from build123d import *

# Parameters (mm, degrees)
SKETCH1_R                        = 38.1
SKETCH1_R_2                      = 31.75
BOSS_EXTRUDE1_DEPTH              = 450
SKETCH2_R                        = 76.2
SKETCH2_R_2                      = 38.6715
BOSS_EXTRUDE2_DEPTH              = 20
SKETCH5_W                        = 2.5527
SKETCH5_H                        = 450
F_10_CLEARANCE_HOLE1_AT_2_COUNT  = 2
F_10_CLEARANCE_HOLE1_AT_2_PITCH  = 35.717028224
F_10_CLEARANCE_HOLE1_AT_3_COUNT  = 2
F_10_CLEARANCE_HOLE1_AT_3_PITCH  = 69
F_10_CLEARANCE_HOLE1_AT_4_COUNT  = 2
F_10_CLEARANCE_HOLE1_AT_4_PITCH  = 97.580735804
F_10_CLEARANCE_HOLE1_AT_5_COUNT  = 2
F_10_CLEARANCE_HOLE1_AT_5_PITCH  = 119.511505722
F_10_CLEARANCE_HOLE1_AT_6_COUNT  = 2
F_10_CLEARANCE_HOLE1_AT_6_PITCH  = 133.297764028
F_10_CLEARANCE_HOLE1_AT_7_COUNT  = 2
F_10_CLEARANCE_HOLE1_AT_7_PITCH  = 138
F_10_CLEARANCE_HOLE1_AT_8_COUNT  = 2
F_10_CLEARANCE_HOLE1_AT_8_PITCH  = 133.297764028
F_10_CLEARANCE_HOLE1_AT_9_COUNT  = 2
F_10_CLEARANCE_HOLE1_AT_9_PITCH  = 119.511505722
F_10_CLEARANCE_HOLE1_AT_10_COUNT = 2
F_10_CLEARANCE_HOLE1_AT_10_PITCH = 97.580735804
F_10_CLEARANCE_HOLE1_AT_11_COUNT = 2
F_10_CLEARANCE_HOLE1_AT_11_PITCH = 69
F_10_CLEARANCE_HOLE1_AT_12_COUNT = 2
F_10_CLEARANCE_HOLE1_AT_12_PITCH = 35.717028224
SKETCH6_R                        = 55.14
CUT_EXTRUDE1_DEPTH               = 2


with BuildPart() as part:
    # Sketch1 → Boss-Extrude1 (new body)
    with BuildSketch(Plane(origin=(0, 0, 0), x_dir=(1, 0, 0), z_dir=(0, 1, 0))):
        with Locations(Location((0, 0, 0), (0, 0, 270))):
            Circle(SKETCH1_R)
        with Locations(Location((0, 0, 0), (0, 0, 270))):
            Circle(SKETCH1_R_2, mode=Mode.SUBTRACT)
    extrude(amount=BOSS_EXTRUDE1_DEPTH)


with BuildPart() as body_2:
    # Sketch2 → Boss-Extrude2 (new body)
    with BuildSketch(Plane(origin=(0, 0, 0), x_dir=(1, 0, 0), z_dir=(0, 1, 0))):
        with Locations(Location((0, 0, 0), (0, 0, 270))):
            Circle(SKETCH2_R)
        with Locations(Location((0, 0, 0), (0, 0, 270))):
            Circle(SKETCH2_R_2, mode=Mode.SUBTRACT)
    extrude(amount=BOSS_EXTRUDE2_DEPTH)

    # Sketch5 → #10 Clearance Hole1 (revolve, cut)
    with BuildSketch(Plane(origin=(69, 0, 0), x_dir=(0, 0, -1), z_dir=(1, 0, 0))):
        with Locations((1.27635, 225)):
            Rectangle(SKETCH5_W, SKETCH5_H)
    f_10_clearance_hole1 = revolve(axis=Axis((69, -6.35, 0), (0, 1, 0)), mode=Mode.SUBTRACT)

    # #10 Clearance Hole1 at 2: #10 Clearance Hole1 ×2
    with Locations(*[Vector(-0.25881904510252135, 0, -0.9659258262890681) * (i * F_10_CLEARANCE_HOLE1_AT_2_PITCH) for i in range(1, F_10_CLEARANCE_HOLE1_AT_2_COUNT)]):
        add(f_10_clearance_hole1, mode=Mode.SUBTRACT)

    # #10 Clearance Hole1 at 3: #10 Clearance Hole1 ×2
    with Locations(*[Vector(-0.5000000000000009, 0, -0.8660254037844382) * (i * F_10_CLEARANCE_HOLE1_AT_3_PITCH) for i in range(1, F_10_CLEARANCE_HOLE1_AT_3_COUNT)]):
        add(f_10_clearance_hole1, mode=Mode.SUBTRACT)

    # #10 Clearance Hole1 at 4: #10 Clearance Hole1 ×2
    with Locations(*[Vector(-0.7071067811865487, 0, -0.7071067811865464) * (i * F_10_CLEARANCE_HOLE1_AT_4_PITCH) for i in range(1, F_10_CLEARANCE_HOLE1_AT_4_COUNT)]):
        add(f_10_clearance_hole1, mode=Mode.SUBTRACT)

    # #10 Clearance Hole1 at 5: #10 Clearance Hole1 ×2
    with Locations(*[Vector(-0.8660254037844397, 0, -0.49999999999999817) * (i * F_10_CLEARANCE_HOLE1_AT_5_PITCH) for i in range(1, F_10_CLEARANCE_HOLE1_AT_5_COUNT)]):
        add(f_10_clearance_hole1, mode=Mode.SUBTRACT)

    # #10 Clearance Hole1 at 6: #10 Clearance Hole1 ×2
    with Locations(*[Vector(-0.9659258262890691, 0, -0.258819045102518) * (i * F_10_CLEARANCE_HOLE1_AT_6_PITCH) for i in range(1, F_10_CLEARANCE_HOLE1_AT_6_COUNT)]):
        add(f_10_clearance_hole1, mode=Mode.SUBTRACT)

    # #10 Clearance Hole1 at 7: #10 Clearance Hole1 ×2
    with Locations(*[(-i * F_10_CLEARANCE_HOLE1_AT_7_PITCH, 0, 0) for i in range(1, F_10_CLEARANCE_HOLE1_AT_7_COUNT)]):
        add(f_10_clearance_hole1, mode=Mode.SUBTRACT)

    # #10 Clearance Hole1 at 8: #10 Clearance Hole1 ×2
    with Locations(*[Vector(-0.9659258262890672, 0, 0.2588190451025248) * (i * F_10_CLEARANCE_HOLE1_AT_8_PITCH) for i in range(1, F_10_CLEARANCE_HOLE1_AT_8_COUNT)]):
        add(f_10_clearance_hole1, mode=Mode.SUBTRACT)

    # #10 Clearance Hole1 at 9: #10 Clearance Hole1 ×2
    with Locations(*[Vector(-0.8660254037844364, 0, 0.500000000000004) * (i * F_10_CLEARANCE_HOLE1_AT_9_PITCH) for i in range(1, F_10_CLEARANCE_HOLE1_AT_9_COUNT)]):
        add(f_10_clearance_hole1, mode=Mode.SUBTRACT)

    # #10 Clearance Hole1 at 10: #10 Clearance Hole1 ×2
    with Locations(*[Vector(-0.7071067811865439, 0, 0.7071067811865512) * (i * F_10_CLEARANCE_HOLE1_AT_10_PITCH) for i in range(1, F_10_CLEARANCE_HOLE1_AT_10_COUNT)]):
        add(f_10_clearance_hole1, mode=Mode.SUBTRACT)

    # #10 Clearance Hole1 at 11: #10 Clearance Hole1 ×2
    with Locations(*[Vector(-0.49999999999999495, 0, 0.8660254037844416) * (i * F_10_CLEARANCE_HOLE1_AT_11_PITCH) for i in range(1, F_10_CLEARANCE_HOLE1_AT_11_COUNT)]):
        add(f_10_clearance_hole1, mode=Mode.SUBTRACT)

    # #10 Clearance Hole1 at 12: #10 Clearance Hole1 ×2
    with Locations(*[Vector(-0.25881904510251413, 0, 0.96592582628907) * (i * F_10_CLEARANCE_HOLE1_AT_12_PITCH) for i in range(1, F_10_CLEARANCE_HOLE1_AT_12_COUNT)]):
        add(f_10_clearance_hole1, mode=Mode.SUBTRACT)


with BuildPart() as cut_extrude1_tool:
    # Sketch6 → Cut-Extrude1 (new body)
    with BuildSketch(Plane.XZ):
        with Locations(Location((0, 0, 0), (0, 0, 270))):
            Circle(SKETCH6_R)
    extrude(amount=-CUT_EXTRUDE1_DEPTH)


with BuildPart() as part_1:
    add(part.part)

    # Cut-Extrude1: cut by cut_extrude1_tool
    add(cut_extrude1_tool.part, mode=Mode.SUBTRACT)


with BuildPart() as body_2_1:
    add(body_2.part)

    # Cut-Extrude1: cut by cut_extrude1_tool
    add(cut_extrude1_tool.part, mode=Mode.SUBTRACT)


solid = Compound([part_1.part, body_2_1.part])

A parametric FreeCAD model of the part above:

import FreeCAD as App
import Part
import Sketcher

V = App.Vector
Q = App.Units.Quantity

doc = App.newDocument("Part")
params = doc.addObject("Spreadsheet::Sheet", "Params")
for row, (alias, value) in enumerate([
    ("sketch1_diameter", "3 in"),
    ("sketch1_diameter2", "2.5 in"),
    ("pad1_length", "450 mm"),
    ("sketch2_diameter", "6 in"),
    ("sketch2_diameter2", "3.045 in"),
    ("pad2_length", "20 mm"),
    ("groove_angle", "360 deg"),
    ("linearpattern_pitch", "35.717028 mm"),
    ("linearpattern2_pitch", "69 mm"),
    ("linearpattern3_pitch", "97.580736 mm"),
    ("linearpattern4_pitch", "119.511506 mm"),
    ("linearpattern5_pitch", "133.297764 mm"),
    ("linearpattern6_pitch", "138 mm"),
    ("linearpattern7_pitch", "133.297764 mm"),
    ("linearpattern8_pitch", "119.511506 mm"),
    ("linearpattern9_pitch", "97.580736 mm"),
    ("linearpattern10_pitch", "69 mm"),
    ("linearpattern11_pitch", "35.717028 mm"),
    ("pad3_length", "2 mm"),
], start=1):
    params.set(f"A{row}", alias)
    params.set(f"B{row}", "=" + value)
    params.setAlias(f"B{row}", alias)

body = doc.addObject("PartDesign::Body", "Body")

# Sketch on XZ plane
sketch1 = body.newObject("Sketcher::SketchObject", "Sketch")
sketch1.AttachmentSupport = (doc.getObject("XZ_Plane"), [""])
sketch1.MapMode = "FlatFace"
sketch1.addGeometry(Part.Circle(V(0, 0, 0), V(0, 0, 1), 38), False)
sketch1.addGeometry(Part.Circle(V(0, 0, 0), V(0, 0, 1), 32), False)
sketch1.addConstraint(Sketcher.Constraint("Coincident", 0, 3, -1, 1))
sketch1.addConstraint(Sketcher.Constraint("Coincident", 1, 3, -1, 1))
sketch1.addConstraint(Sketcher.Constraint("Diameter", 0, Q("3 in")))
sketch1.addConstraint(Sketcher.Constraint("Diameter", 1, Q("2.5 in")))
sketch1.setExpression("Constraints[2]", "Params.sketch1_diameter")
sketch1.setExpression("Constraints[3]", "Params.sketch1_diameter2")
pad1 = body.newObject("PartDesign::Pad", "Pad")
pad1.Profile = sketch1
pad1.setExpression("Length", "Params.pad1_length")
pad1.Reversed = True
body2 = doc.addObject("PartDesign::Body", "Body001")

# Sketch on XZ plane
sketch2 = body2.newObject("Sketcher::SketchObject", "Sketch001")
sketch2.AttachmentSupport = (doc.getObject("XZ_Plane001"), [""])
sketch2.MapMode = "FlatFace"
sketch2.addGeometry(Part.Circle(V(0, 0, 0), V(0, 0, 1), 76), False)
sketch2.addGeometry(Part.Circle(V(0, 0, 0), V(0, 0, 1), 39), False)
sketch2.addConstraint(Sketcher.Constraint("Coincident", 0, 3, -1, 1))
sketch2.addConstraint(Sketcher.Constraint("Coincident", 1, 3, -1, 1))
sketch2.addConstraint(Sketcher.Constraint("Diameter", 0, Q("6 in")))
sketch2.addConstraint(Sketcher.Constraint("Diameter", 1, Q("3.045 in")))
sketch2.setExpression("Constraints[2]", "Params.sketch2_diameter")
sketch2.setExpression("Constraints[3]", "Params.sketch2_diameter2")
pad2 = body2.newObject("PartDesign::Pad", "Pad001")
pad2.Profile = sketch2
pad2.setExpression("Length", "Params.pad2_length")
pad2.Reversed = True

# Sketch on YZ plane
sketch3 = body2.newObject("Sketcher::SketchObject", "Sketch002")
sketch3.AttachmentSupport = (doc.getObject("YZ_Plane001"), [""])
sketch3.MapMode = "FlatFace"
sketch3.AttachmentOffset = App.Placement(V(0, 0, 69), App.Rotation())
sketch3.addGeometry(Part.LineSegment(V(450, 0, 0), V(0, 0, 0)), False)
sketch3.addGeometry(Part.LineSegment(V(0, 0, 0), V(0, -2.6, 0)), False)
sketch3.addGeometry(Part.LineSegment(V(0, -2.6, 0), V(450, -2.6, 0)), False)
sketch3.addGeometry(Part.LineSegment(V(450, -2.6, 0), V(450, 0, 0)), False)
sketch3.addConstraint(Sketcher.Constraint("Coincident", 0, 2, 1, 1))
sketch3.addConstraint(Sketcher.Constraint("Coincident", 1, 2, 2, 1))
sketch3.addConstraint(Sketcher.Constraint("Coincident", 2, 2, 3, 1))
sketch3.addConstraint(Sketcher.Constraint("Coincident", 3, 2, 0, 1))
sketch3.addConstraint(Sketcher.Constraint("Horizontal", 0))
sketch3.addConstraint(Sketcher.Constraint("Vertical", 1))
sketch3.addConstraint(Sketcher.Constraint("Horizontal", 2))
sketch3.addConstraint(Sketcher.Constraint("Vertical", 3))
sketch3.addConstraint(Sketcher.Constraint("Coincident", 0, 2, -1, 1))
sketch3.addConstraint(Sketcher.Constraint("DistanceY", 1, 2, 1, 1, Q("0.1005 in")))
sketch3.addConstraint(Sketcher.Constraint("DistanceX", 0, 2, 0, 1, 450.0))
groove = body2.newObject("PartDesign::Groove", "Groove")
groove.Profile = sketch3
groove.ReferenceAxis = (sketch3, ["H_Axis"])
groove.setExpression("Angle", "Params.groove_angle")
doc.recompute()

datumline = body2.newObject("PartDesign::Line", "DatumLine")
datumline.Placement = App.Placement(V(0, 0, 0), App.Rotation(V(0, 0, 1), V(-0.258819045, 0, -0.965925826)))
linearpattern = body2.newObject("PartDesign::LinearPattern", "LinearPattern")
linearpattern.Originals = [groove]
linearpattern.Direction = (datumline, [""])
linearpattern.Mode = "offset"
linearpattern.setExpression("Offset", "Params.linearpattern_pitch")
linearpattern.Occurrences = 2
body2.Tip = linearpattern
doc.recompute()

datumline2 = body2.newObject("PartDesign::Line", "DatumLine001")
datumline2.Placement = App.Placement(V(0, 0, 0), App.Rotation(V(0, 0, 1), V(-0.5, 0, -0.866025404)))
linearpattern2 = body2.newObject("PartDesign::LinearPattern", "LinearPattern001")
linearpattern2.Originals = [groove]
linearpattern2.Direction = (datumline2, [""])
linearpattern2.Mode = "offset"
linearpattern2.setExpression("Offset", "Params.linearpattern2_pitch")
linearpattern2.Occurrences = 2
body2.Tip = linearpattern2
doc.recompute()

datumline3 = body2.newObject("PartDesign::Line", "DatumLine002")
datumline3.Placement = App.Placement(V(0, 0, 0), App.Rotation(V(0, 0, 1), V(-0.707106781, 0, -0.707106781)))
linearpattern3 = body2.newObject("PartDesign::LinearPattern", "LinearPattern002")
linearpattern3.Originals = [groove]
linearpattern3.Direction = (datumline3, [""])
linearpattern3.Mode = "offset"
linearpattern3.setExpression("Offset", "Params.linearpattern3_pitch")
linearpattern3.Occurrences = 2
body2.Tip = linearpattern3
doc.recompute()

datumline4 = body2.newObject("PartDesign::Line", "DatumLine003")
datumline4.Placement = App.Placement(V(0, 0, 0), App.Rotation(V(0, 0, 1), V(-0.866025404, 0, -0.5)))
linearpattern4 = body2.newObject("PartDesign::LinearPattern", "LinearPattern003")
linearpattern4.Originals = [groove]
linearpattern4.Direction = (datumline4, [""])
linearpattern4.Mode = "offset"
linearpattern4.setExpression("Offset", "Params.linearpattern4_pitch")
linearpattern4.Occurrences = 2
body2.Tip = linearpattern4
doc.recompute()

datumline5 = body2.newObject("PartDesign::Line", "DatumLine004")
datumline5.Placement = App.Placement(V(0, 0, 0), App.Rotation(V(0, 0, 1), V(-0.965925826, 0, -0.258819045)))
linearpattern5 = body2.newObject("PartDesign::LinearPattern", "LinearPattern004")
linearpattern5.Originals = [groove]
linearpattern5.Direction = (datumline5, [""])
linearpattern5.Mode = "offset"
linearpattern5.setExpression("Offset", "Params.linearpattern5_pitch")
linearpattern5.Occurrences = 2
body2.Tip = linearpattern5
doc.recompute()

linearpattern6 = body2.newObject("PartDesign::LinearPattern", "LinearPattern005")
linearpattern6.Originals = [groove]
linearpattern6.Direction = (doc.getObject("X_Axis001"), [""])
linearpattern6.Mode = "offset"
linearpattern6.setExpression("Offset", "Params.linearpattern6_pitch")
linearpattern6.Occurrences = 2
linearpattern6.Reversed = True
body2.Tip = linearpattern6
doc.recompute()

datumline6 = body2.newObject("PartDesign::Line", "DatumLine005")
datumline6.Placement = App.Placement(V(0, 0, 0), App.Rotation(V(0, 0, 1), V(-0.965925826, 0, 0.258819045)))
linearpattern7 = body2.newObject("PartDesign::LinearPattern", "LinearPattern006")
linearpattern7.Originals = [groove]
linearpattern7.Direction = (datumline6, [""])
linearpattern7.Mode = "offset"
linearpattern7.setExpression("Offset", "Params.linearpattern7_pitch")
linearpattern7.Occurrences = 2
body2.Tip = linearpattern7
doc.recompute()

datumline7 = body2.newObject("PartDesign::Line", "DatumLine006")
datumline7.Placement = App.Placement(V(0, 0, 0), App.Rotation(V(0, 0, 1), V(-0.866025404, 0, 0.5)))
linearpattern8 = body2.newObject("PartDesign::LinearPattern", "LinearPattern007")
linearpattern8.Originals = [groove]
linearpattern8.Direction = (datumline7, [""])
linearpattern8.Mode = "offset"
linearpattern8.setExpression("Offset", "Params.linearpattern8_pitch")
linearpattern8.Occurrences = 2
body2.Tip = linearpattern8
doc.recompute()

datumline8 = body2.newObject("PartDesign::Line", "DatumLine007")
datumline8.Placement = App.Placement(V(0, 0, 0), App.Rotation(V(0, 0, 1), V(-0.707106781, 0, 0.707106781)))
linearpattern9 = body2.newObject("PartDesign::LinearPattern", "LinearPattern008")
linearpattern9.Originals = [groove]
linearpattern9.Direction = (datumline8, [""])
linearpattern9.Mode = "offset"
linearpattern9.setExpression("Offset", "Params.linearpattern9_pitch")
linearpattern9.Occurrences = 2
body2.Tip = linearpattern9
doc.recompute()

datumline9 = body2.newObject("PartDesign::Line", "DatumLine008")
datumline9.Placement = App.Placement(V(0, 0, 0), App.Rotation(V(0, 0, 1), V(-0.5, 0, 0.866025404)))
linearpattern10 = body2.newObject("PartDesign::LinearPattern", "LinearPattern009")
linearpattern10.Originals = [groove]
linearpattern10.Direction = (datumline9, [""])
linearpattern10.Mode = "offset"
linearpattern10.setExpression("Offset", "Params.linearpattern10_pitch")
linearpattern10.Occurrences = 2
body2.Tip = linearpattern10
doc.recompute()

datumline10 = body2.newObject("PartDesign::Line", "DatumLine009")
datumline10.Placement = App.Placement(V(0, 0, 0), App.Rotation(V(0, 0, 1), V(-0.258819045, 0, 0.965925826)))
linearpattern11 = body2.newObject("PartDesign::LinearPattern", "LinearPattern010")
linearpattern11.Originals = [groove]
linearpattern11.Direction = (datumline10, [""])
linearpattern11.Mode = "offset"
linearpattern11.setExpression("Offset", "Params.linearpattern11_pitch")
linearpattern11.Occurrences = 2
body2.Tip = linearpattern11
body3 = doc.addObject("PartDesign::Body", "Body002")

# Sketch on XZ plane
sketch4 = body3.newObject("Sketcher::SketchObject", "Sketch003")
sketch4.AttachmentSupport = (doc.getObject("XZ_Plane002"), [""])
sketch4.MapMode = "FlatFace"
sketch4.addGeometry(Part.Circle(V(0, 0, 0), V(0, 0, 1), 55), False)
sketch4.addConstraint(Sketcher.Constraint("Coincident", 0, 3, -1, 1))
sketch4.addConstraint(Sketcher.Constraint("Diameter", 0, 110.28))
pad3 = body3.newObject("PartDesign::Pad", "Pad002")
pad3.Profile = sketch4
pad3.setExpression("Length", "Params.pad3_length")
pad3.Reversed = True
doc.recompute()

body4 = doc.addObject("PartDesign::Body", "Body003")
body4.BaseFeature = body3
boolean = body.newObject("PartDesign::Boolean", "Boolean")
boolean.Type = "Cut"
boolean.addObjects([body4])
doc.recompute()

boolean2 = body2.newObject("PartDesign::Boolean", "Boolean001")
boolean2.Type = "Cut"
boolean2.addObjects([body3])

doc.recompute()
